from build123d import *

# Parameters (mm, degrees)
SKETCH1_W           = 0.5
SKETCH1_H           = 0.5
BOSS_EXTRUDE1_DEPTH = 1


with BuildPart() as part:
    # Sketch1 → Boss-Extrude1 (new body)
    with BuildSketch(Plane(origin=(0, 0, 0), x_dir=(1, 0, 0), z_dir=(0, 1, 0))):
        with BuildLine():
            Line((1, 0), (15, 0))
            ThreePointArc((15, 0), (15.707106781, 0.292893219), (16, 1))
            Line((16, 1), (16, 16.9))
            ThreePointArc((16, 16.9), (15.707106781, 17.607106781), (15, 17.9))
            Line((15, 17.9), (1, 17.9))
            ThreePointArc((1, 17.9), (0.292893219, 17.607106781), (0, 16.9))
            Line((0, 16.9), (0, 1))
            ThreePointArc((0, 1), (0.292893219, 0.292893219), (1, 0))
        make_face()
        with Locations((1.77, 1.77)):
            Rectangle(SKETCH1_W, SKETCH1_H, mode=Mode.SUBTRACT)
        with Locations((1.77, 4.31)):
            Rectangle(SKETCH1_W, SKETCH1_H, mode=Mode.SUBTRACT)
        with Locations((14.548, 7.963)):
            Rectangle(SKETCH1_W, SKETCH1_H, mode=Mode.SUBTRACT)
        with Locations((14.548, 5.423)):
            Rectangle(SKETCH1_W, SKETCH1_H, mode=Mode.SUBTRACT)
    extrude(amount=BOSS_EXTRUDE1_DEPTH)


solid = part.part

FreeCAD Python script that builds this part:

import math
import FreeCAD as App
import Part
import Sketcher


def add_polygon(sketch, points):
    """Adds a closed chain of lines whose ends are joined by coincident constraints."""
    first, n = sketch.GeometryCount, len(points)
    for a, b in zip(points, points[1:] + points[:1]):
        sketch.addGeometry(Part.LineSegment(App.Vector(*a, 0), App.Vector(*b, 0)), False)
    for i in range(n):
        sketch.addConstraint(Sketcher.Constraint("Coincident", first + i, 2, first + (i + 1) % n, 1))

doc = App.newDocument("Part")
body = doc.addObject("PartDesign::Body", "Body")

sketch1 = body.newObject("Sketcher::SketchObject", "Sketch")
sketch1.AttachmentSupport = (doc.getObject("XZ_Plane"), [""])
sketch1.MapMode = "FlatFace"
sketch1.addGeometry(Part.LineSegment(App.Vector(1, 0, 0), App.Vector(15, 0, 0)), False)
sketch1.addGeometry(Part.ArcOfCircle(Part.Circle(App.Vector(15, -1, 0), App.Vector(0, 0, 1), 1), math.radians(0), math.radians(90)), False)
sketch1.addGeometry(Part.LineSegment(App.Vector(16, -1, 0), App.Vector(16, -16.9, 0)), False)
sketch1.addGeometry(Part.ArcOfCircle(Part.Circle(App.Vector(15, -16.9, 0), App.Vector(0, 0, 1), 1), math.radians(-90), math.radians(0)), False)
sketch1.addGeometry(Part.LineSegment(App.Vector(15, -17.9, 0), App.Vector(1, -17.9, 0)), False)
sketch1.addGeometry(Part.ArcOfCircle(Part.Circle(App.Vector(1, -16.9, 0), App.Vector(0, 0, 1), 1), math.radians(-180), math.radians(-90)), False)
sketch1.addGeometry(Part.LineSegment(App.Vector(0, -16.9, 0), App.Vector(0, -1, 0)), False)
sketch1.addGeometry(Part.ArcOfCircle(Part.Circle(App.Vector(1, -1, 0), App.Vector(0, 0, 1), 1), math.radians(90), math.radians(180)), False)
add_polygon(sketch1, [(2.02, -1.52), (1.52, -1.52), (1.52, -2.02), (2.02, -2.02)])
add_polygon(sketch1, [(2.02, -4.06), (1.52, -4.06), (1.52, -4.56), (2.02, -4.56)])
add_polygon(sketch1, [(14.8, -5.17), (14.3, -5.17), (14.3, -5.67), (14.8, -5.67)])
add_polygon(sketch1, [(14.8, -7.71), (14.3, -7.71), (14.3, -8.21), (14.8, -8.21)])
sketch1.addConstraint(Sketcher.Constraint("Tangent", 0, 2, 1, 2))
sketch1.addConstraint(Sketcher.Constraint("Tangent", 1, 1, 2, 1))
sketch1.addConstraint(Sketcher.Constraint("Tangent", 2, 2, 3, 2))
sketch1.addConstraint(Sketcher.Constraint("Tangent", 3, 1, 4, 1))
sketch1.addConstraint(Sketcher.Constraint("Tangent", 4, 2, 5, 2))
sketch1.addConstraint(Sketcher.Constraint("Tangent", 5, 1, 6, 1))
sketch1.addConstraint(Sketcher.Constraint("Tangent", 6, 2, 7, 2))
sketch1.addConstraint(Sketcher.Constraint("Tangent", 7, 1, 0, 1))
sketch1.addConstraint(Sketcher.Constraint("Horizontal", 0))
sketch1.addConstraint(Sketcher.Constraint("Vertical", 2))
sketch1.addConstraint(Sketcher.Constraint("Horizontal", 4))
sketch1.addConstraint(Sketcher.Constraint("Vertical", 6))
sketch1.addConstraint(Sketcher.Constraint("Horizontal", 8))
sketch1.addConstraint(Sketcher.Constraint("Vertical", 9))
sketch1.addConstraint(Sketcher.Constraint("Horizontal", 10))
sketch1.addConstraint(Sketcher.Constraint("Vertical", 11))
sketch1.addConstraint(Sketcher.Constraint("Horizontal", 12))
sketch1.addConstraint(Sketcher.Constraint("Vertical", 13))
sketch1.addConstraint(Sketcher.Constraint("Horizontal", 14))
sketch1.addConstraint(Sketcher.Constraint("Vertical", 15))
sketch1.addConstraint(Sketcher.Constraint("Horizontal", 16))
sketch1.addConstraint(Sketcher.Constraint("Vertical", 17))
sketch1.addConstraint(Sketcher.Constraint("Horizontal", 18))
sketch1.addConstraint(Sketcher.Constraint("Vertical", 19))
sketch1.addConstraint(Sketcher.Constraint("Horizontal", 20))
sketch1.addConstraint(Sketcher.Constraint("Vertical", 21))
sketch1.addConstraint(Sketcher.Constraint("Horizontal", 22))
sketch1.addConstraint(Sketcher.Constraint("Vertical", 23))
sketch1.addConstraint(Sketcher.Constraint("Equal", 1, 3))
sketch1.addConstraint(Sketcher.Constraint("Equal", 3, 5))
sketch1.addConstraint(Sketcher.Constraint("Equal", 5, 7))
sketch1.addConstraint(Sketcher.Constraint("PointOnObject", 0, 2, -1))
sketch1.addConstraint(Sketcher.Constraint("PointOnObject", 5, 1, -2))
sketch1.addConstraint(Sketcher.Constraint("Vertical", 9, 2, 12, 2))
sketch1.addConstraint(Sketcher.Constraint("Vertical", 11, 2, 14, 2))
sketch1.addConstraint(Sketcher.Constraint("Vertical", 17, 2, 20, 2))
sketch1.addConstraint(Sketcher.Constraint("Vertical", 19, 2, 22, 2))
sketch1.addConstraint(Sketcher.Constraint("Equal", 14, 16))
sketch1.addConstraint(Sketcher.Constraint("Equal", 22, 9))
sketch1.addConstraint(Sketcher.Constraint("Equal", 11, 13))
sketch1.addConstraint(Sketcher.Constraint("Equal", 15, 17))
sketch1.addConstraint(Sketcher.Constraint("Equal", 19, 21))
sketch1.addConstraint(Sketcher.Constraint("Radius", 1, 1.0))
sketch1.addConstraint(Sketcher.Constraint("DistanceX", 0, 1, 0, 2, 14.0))
sketch1.addConstraint(Sketcher.Constraint("DistanceX", 8, 2, 8, 1, 0.5))
sketch1.addConstraint(Sketcher.Constraint("DistanceY", 2, 2, 2, 1, 15.9))
sketch1.addConstraint(Sketcher.Constraint("DistanceX", -1, 1, 8, 2, 1.52))
sketch1.addConstraint(Sketcher.Constraint("DistanceY", 8, 2, -1, 1, 1.52))
sketch1.addConstraint(Sketcher.Constraint("DistanceY", 12, 2, -1, 1, 4.06))
sketch1.addConstraint(Sketcher.Constraint("DistanceY", 20, 2, 17, 2, 2.04))
sketch1.addConstraint(Sketcher.Constraint("DistanceX", -1, 1, 16, 2, 14.298))
sketch1.addConstraint(Sketcher.Constraint("DistanceY", 16, 2, -1, 1, 5.173))
pad1 = body.newObject("PartDesign::Pad", "Pad")
pad1.Profile = sketch1
pad1.Length = 1
pad1.Reversed = True

doc.recompute()
